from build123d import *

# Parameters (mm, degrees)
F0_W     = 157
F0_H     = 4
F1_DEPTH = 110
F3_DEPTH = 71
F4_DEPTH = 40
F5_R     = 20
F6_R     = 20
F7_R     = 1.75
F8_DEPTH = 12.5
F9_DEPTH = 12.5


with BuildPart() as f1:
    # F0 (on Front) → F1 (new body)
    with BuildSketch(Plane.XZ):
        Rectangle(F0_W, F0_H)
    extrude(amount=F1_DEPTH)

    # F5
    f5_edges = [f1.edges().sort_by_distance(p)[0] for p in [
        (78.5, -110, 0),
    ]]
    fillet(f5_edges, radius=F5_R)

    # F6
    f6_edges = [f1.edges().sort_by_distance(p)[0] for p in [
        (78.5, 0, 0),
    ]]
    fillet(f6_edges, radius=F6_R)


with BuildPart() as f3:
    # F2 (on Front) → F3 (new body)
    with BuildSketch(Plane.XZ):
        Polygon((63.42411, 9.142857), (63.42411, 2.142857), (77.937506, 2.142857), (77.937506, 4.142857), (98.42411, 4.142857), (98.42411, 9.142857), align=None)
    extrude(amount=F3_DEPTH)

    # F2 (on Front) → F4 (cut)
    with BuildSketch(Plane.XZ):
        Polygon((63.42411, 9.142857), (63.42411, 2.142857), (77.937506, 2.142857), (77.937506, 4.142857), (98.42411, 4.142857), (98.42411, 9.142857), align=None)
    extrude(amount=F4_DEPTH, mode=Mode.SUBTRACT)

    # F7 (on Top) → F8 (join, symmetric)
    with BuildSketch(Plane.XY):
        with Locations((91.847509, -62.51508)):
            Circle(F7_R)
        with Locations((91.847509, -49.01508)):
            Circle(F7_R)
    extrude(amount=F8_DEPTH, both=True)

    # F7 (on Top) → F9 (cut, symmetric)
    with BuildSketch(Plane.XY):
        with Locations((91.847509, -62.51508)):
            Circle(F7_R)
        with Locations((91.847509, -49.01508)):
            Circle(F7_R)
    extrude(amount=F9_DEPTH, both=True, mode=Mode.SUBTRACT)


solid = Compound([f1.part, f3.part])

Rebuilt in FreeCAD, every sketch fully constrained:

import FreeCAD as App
import Part
import Sketcher


def edges_at(feature, points):
    """Names of the edges that pass closest to the given points."""
    edges = feature.Shape.Edges
    near = lambda p: min(range(len(edges)), key=lambda i: edges[i].distToShape(Part.Vertex(*p))[0])
    return sorted({f"Edge{near(p) + 1}" for p in points})


def add_polygon(sketch, points):
    """Adds a closed chain of lines whose ends are joined by coincident constraints."""
    first, n = sketch.GeometryCount, len(points)
    for a, b in zip(points, points[1:] + points[:1]):
        sketch.addGeometry(Part.LineSegment(App.Vector(*a, 0), App.Vector(*b, 0)), False)
    for i in range(n):
        sketch.addConstraint(Sketcher.Constraint("Coincident", first + i, 2, first + (i + 1) % n, 1))

doc = App.newDocument("Part")
body = doc.addObject("PartDesign::Body", "Body")

# Sketch on XZ plane
sketch1 = body.newObject("Sketcher::SketchObject", "Sketch")
sketch1.AttachmentSupport = (doc.getObject("XZ_Plane"), [""])
sketch1.MapMode = "FlatFace"
add_polygon(sketch1, [(-78.5, 2), (-78.5, -2), (78.5, -2), (78.5, 2)])  # lines 0-3
sketch1.addConstraint(Sketcher.Constraint("Vertical", 0))
sketch1.addConstraint(Sketcher.Constraint("Horizontal", 1))
sketch1.addConstraint(Sketcher.Constraint("Vertical", 2))
sketch1.addConstraint(Sketcher.Constraint("Horizontal", 3))
sketch1.addConstraint(Sketcher.Constraint("Symmetric", 0, 2, 2, 2, -1, 1))
sketch1.addConstraint(Sketcher.Constraint("DistanceX", 1, 1, 1, 2, 157.0))
sketch1.addConstraint(Sketcher.Constraint("DistanceY", 0, 2, 0, 1, 4.0))
pad1 = body.newObject("PartDesign::Pad", "Pad")
pad1.Profile = sketch1
pad1.Length = 110
doc.recompute()

fillet = body.newObject("PartDesign::Fillet", "Fillet")
fillet.Base = (pad1, edges_at(pad1, [(78.5, -110, 0)]))
fillet.Radius = 20
doc.recompute()

fillet2 = body.newObject("PartDesign::Fillet", "Fillet001")
fillet2.Base = (fillet, edges_at(fillet, [(78.5, 0, 0)]))
fillet2.Radius = 20
body2 = doc.addObject("PartDesign::Body", "Body001")

# Sketch on XZ plane
sketch2 = body2.newObject("Sketcher::SketchObject", "Sketch001")
sketch2.AttachmentSupport = (doc.getObject("XZ_Plane001"), [""])
sketch2.MapMode = "FlatFace"
add_polygon(sketch2, [(63.4, 9.1), (63.4, 2.1), (77.9, 2.1), (77.9, 4.1), (98.4, 4.1), (98.4, 9.1)])  # lines 0-5
sketch2.addConstraint(Sketcher.Constraint("Vertical", 0))
sketch2.addConstraint(Sketcher.Constraint("Horizontal", 1))
sketch2.addConstraint(Sketcher.Constraint("Vertical", 2))
sketch2.addConstraint(Sketcher.Constraint("Horizontal", 3))
sketch2.addConstraint(Sketcher.Constraint("Vertical", 4))
sketch2.addConstraint(Sketcher.Constraint("Horizontal", 5))
sketch2.addConstraint(Sketcher.Constraint("DistanceX", 5, 2, 5, 1, 35.0))
sketch2.addConstraint(Sketcher.Constraint("DistanceY", 0, 2, 0, 1, 7.0))
sketch2.addConstraint(Sketcher.Constraint("DistanceY", 2, 1, 2, 2, 2.0))
sketch2.addConstraint(Sketcher.Constraint("DistanceX", 1, 1, 1, 2, 14.513396))
sketch2.addConstraint(Sketcher.Constraint("DistanceX", -1, 1, 0, 2, 63.42411))
sketch2.addConstraint(Sketcher.Constraint("DistanceY", -1, 1, 0, 2, 2.142857))
pad2 = body2.newObject("PartDesign::Pad", "Pad001")
pad2.Profile = sketch2
pad2.Length = 71

# Sketch on XZ plane
sketch3 = body2.newObject("Sketcher::SketchObject", "Sketch002")
sketch3.AttachmentSupport = (doc.getObject("XZ_Plane001"), [""])
sketch3.MapMode = "FlatFace"
add_polygon(sketch3, [(63.4, 9.1), (63.4, 2.1), (77.9, 2.1), (77.9, 4.1), (98.4, 4.1), (98.4, 9.1)])  # lines 0-5
sketch3.addConstraint(Sketcher.Constraint("Vertical", 0))
sketch3.addConstraint(Sketcher.Constraint("Horizontal", 1))
sketch3.addConstraint(Sketcher.Constraint("Vertical", 2))
sketch3.addConstraint(Sketcher.Constraint("Horizontal", 3))
sketch3.addConstraint(Sketcher.Constraint("Vertical", 4))
sketch3.addConstraint(Sketcher.Constraint("Horizontal", 5))
sketch3.addConstraint(Sketcher.Constraint("DistanceX", 5, 2, 5, 1, 35.0))
sketch3.addConstraint(Sketcher.Constraint("DistanceY", 0, 2, 0, 1, 7.0))
sketch3.addConstraint(Sketcher.Constraint("DistanceY", 2, 1, 2, 2, 2.0))
sketch3.addConstraint(Sketcher.Constraint("DistanceX", 1, 1, 1, 2, 14.513396))
sketch3.addConstraint(Sketcher.Constraint("DistanceX", -1, 1, 0, 2, 63.42411))
sketch3.addConstraint(Sketcher.Constraint("DistanceY", -1, 1, 0, 2, 2.142857))
pocket1 = body2.newObject("PartDesign::Pocket", "Pocket")
pocket1.Profile = sketch3
pocket1.Length = 40
pocket1.Reversed = True

# Sketch on XY plane
sketch4 = body2.newObject("Sketcher::SketchObject", "Sketch003")
sketch4.AttachmentSupport = (doc.getObject("XY_Plane001"), [""])
sketch4.MapMode = "FlatFace"
sketch4.addGeometry(Part.Circle(App.Vector(91.8, -62.5, 0), App.Vector(0, 0, 1), 1.8), False)
sketch4.addGeometry(Part.Circle(App.Vector(91.8, -49, 0), App.Vector(0, 0, 1), 1.8), False)
sketch4.addConstraint(Sketcher.Constraint("Equal", 0, 1))
sketch4.addConstraint(Sketcher.Constraint("Vertical", 0, 3, 1, 3))
sketch4.addConstraint(Sketcher.Constraint("Diameter", 0, 3.5))
sketch4.addConstraint(Sketcher.Constraint("DistanceY", 0, 3, 1, 3, 13.5))
sketch4.addConstraint(Sketcher.Constraint("DistanceX", -1, 1, 0, 3, 91.847509))
sketch4.addConstraint(Sketcher.Constraint("DistanceY", 0, 3, -1, 1, 62.51508))
pad3 = body2.newObject("PartDesign::Pad", "Pad002")
pad3.Profile = sketch4
pad3.Length = 25
pad3.Midplane = True

# Sketch on XY plane
sketch5 = body2.newObject("Sketcher::SketchObject", "Sketch004")
sketch5.AttachmentSupport = (doc.getObject("XY_Plane001"), [""])
sketch5.MapMode = "FlatFace"
sketch5.addGeometry(Part.Circle(App.Vector(91.8, -62.5, 0), App.Vector(0, 0, 1), 1.8), False)
sketch5.addGeometry(Part.Circle(App.Vector(91.8, -49, 0), App.Vector(0, 0, 1), 1.8), False)
sketch5.addConstraint(Sketcher.Constraint("Equal", 0, 1))
sketch5.addConstraint(Sketcher.Constraint("Vertical", 0, 3, 1, 3))
sketch5.addConstraint(Sketcher.Constraint("Diameter", 0, 3.5))
sketch5.addConstraint(Sketcher.Constraint("DistanceY", 0, 3, 1, 3, 13.5))
sketch5.addConstraint(Sketcher.Constraint("DistanceX", -1, 1, 0, 3, 91.847509))
sketch5.addConstraint(Sketcher.Constraint("DistanceY", 0, 3, -1, 1, 62.51508))
pocket2 = body2.newObject("PartDesign::Pocket", "Pocket001")
pocket2.Profile = sketch5
pocket2.Length = 25
pocket2.Midplane = True

doc.recompute()
